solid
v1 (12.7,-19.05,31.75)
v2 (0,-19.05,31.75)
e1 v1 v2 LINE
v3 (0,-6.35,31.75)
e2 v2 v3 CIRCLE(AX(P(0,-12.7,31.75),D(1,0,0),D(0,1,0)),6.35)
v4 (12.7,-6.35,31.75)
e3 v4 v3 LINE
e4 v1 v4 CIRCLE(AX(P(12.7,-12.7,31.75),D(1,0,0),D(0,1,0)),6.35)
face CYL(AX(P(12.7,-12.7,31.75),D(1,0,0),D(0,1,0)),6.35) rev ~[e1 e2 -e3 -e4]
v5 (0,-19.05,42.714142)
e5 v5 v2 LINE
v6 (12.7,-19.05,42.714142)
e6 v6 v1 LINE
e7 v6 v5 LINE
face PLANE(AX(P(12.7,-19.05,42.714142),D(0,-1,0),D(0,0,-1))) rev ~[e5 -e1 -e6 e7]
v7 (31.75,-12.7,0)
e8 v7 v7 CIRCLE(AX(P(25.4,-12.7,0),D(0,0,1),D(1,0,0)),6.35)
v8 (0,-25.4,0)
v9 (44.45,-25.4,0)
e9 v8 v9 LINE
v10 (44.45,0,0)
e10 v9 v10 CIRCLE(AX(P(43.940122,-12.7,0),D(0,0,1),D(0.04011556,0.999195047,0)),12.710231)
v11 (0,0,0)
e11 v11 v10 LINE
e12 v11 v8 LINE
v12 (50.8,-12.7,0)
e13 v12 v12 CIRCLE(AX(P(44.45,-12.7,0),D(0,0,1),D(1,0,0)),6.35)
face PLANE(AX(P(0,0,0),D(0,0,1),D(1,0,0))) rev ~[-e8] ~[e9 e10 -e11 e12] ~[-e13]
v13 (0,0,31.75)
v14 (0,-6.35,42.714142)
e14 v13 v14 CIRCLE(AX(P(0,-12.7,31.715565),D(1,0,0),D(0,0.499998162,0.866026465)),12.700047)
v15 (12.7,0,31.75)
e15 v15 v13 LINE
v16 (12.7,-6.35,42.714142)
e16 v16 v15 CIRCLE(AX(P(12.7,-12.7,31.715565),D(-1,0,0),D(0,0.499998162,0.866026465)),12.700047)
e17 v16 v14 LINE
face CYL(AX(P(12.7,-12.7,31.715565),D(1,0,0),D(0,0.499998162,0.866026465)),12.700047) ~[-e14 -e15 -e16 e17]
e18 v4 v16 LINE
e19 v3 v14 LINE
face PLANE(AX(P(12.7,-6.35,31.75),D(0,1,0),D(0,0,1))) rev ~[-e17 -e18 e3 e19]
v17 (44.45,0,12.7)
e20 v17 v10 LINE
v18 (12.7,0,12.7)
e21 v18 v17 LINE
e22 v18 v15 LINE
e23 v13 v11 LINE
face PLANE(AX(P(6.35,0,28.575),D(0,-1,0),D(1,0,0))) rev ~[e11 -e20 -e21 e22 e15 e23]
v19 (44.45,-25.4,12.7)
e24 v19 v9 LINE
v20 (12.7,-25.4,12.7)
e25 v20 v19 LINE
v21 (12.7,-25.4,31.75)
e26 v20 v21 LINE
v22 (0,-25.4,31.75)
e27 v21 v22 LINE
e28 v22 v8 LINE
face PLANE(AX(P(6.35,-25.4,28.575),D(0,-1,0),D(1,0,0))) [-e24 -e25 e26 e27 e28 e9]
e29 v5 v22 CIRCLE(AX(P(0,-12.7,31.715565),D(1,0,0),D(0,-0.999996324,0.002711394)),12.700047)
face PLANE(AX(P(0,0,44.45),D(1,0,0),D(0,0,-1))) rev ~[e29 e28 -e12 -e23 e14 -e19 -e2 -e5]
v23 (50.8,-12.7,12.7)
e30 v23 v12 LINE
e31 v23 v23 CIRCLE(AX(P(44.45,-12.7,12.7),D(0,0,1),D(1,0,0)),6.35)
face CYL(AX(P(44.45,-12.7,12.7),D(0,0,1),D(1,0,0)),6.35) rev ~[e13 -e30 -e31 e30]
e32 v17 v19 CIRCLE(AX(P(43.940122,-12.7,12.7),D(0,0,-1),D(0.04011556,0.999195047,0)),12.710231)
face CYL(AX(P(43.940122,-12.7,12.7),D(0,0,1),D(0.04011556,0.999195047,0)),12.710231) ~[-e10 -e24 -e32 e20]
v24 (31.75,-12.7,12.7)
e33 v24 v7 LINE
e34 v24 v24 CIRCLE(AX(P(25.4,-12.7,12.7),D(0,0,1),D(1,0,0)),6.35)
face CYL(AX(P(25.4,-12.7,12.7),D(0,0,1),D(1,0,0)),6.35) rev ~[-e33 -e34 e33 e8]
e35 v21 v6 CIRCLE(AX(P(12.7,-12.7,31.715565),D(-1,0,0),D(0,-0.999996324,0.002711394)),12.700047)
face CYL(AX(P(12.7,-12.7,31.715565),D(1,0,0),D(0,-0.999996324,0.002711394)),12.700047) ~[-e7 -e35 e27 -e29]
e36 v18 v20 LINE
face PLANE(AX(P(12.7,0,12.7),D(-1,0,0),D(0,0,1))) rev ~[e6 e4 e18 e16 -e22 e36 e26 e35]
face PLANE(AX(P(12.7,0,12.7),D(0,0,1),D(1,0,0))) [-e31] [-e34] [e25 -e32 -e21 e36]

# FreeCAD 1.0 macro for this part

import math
import FreeCAD as App
import Part
import Sketcher

V = App.Vector
Q = App.Units.Quantity

doc = App.newDocument("Part")
params = doc.addObject("Spreadsheet::Sheet", "Params")
for row, (alias, value) in enumerate([
    ("sketch1_width", "0.5 in"),
    ("sketch1_width2", "2.25 in"),
    ("pad1_length", "1 in"),
    ("sketch2_diameter", "0.5 in"),
    ("sketch2_height", "1 in"),
    ("sketch2_width", "0.5 in"),
    ("pocket1_length", "1 in"),
    ("sketch3_width", "1 in"),
    ("sketch3_radius", "0.25 in"),
    ("sketch3_height", "0.5 in"),
    ("pocket2_length", "1 in"),
], start=1):
    params.set(f"A{row}", alias)
    params.set(f"B{row}", "=" + value)
    params.setAlias(f"B{row}", alias)

body = doc.addObject("PartDesign::Body", "Body")

# Sketch on XZ plane
sketch1 = body.newObject("Sketcher::SketchObject", "Sketch")
sketch1.AttachmentSupport = (doc.getObject("XZ_Plane"), [""])
sketch1.MapMode = "FlatFace"
sketch1.addGeometry(Part.LineSegment(V(0, 44, 0), V(0, 0, 0)), False)
sketch1.addGeometry(Part.LineSegment(V(0, 0, 0), V(57, 0, 0)), False)
sketch1.addGeometry(Part.LineSegment(V(57, 0, 0), V(57, 13, 0)), False)
sketch1.addGeometry(Part.LineSegment(V(57, 13, 0), V(13, 13, 0)), False)
sketch1.addGeometry(Part.LineSegment(V(13, 13, 0), V(13, 44, 0)), False)
sketch1.addGeometry(Part.LineSegment(V(13, 44, 0), V(0, 44, 0)), False)
sketch1.addConstraint(Sketcher.Constraint("Coincident", 0, 2, 1, 1))
sketch1.addConstraint(Sketcher.Constraint("Coincident", 1, 2, 2, 1))
sketch1.addConstraint(Sketcher.Constraint("Coincident", 2, 2, 3, 1))
sketch1.addConstraint(Sketcher.Constraint("Coincident", 3, 2, 4, 1))
sketch1.addConstraint(Sketcher.Constraint("Coincident", 4, 2, 5, 1))
sketch1.addConstraint(Sketcher.Constraint("Coincident", 5, 2, 0, 1))
sketch1.addConstraint(Sketcher.Constraint("Vertical", 0))
sketch1.addConstraint(Sketcher.Constraint("Horizontal", 1))
sketch1.addConstraint(Sketcher.Constraint("Vertical", 2))
sketch1.addConstraint(Sketcher.Constraint("Horizontal", 3))
sketch1.addConstraint(Sketcher.Constraint("Vertical", 4))
sketch1.addConstraint(Sketcher.Constraint("Horizontal", 5))
sketch1.addConstraint(Sketcher.Constraint("Coincident", 0, 2, -1, 1))
sketch1.addConstraint(Sketcher.Constraint("Equal", 3, 0))
sketch1.addConstraint(Sketcher.Constraint("Equal", 5, 2))
sketch1.addConstraint(Sketcher.Constraint("DistanceX", 5, 2, 5, 1, Q("0.5 in")))
sketch1.addConstraint(Sketcher.Constraint("DistanceX", 1, 1, 1, 2, Q("2.25 in")))
sketch1.setExpression("Constraints[15]", "Params.sketch1_width")
sketch1.setExpression("Constraints[16]", "Params.sketch1_width2")
pad1 = body.newObject("PartDesign::Pad", "Pad")
pad1.Profile = sketch1
pad1.setExpression("Length", "Params.pad1_length")

# Sketch on XY plane
sketch2 = body.newObject("Sketcher::SketchObject", "Sketch001")
sketch2.AttachmentSupport = (doc.getObject("XY_Plane"), [""])
sketch2.MapMode = "FlatFace"
sketch2.AttachmentOffset = App.Placement(V(0, 0, 0.5 * 25.4), App.Rotation())
sketch2.addGeometry(Part.Circle(V(25, -13, 0), V(0, 0, 1), 6), False)
sketch2.addGeometry(Part.Circle(V(44, -13, 0), V(0, 0, 1), 6), False)
sketch2.addGeometry(Part.ArcOfCircle(Part.Circle(V(44, -13, 0), V(0, 0, 1), 13), math.radians(-88), math.radians(88)), False)
sketch2.addGeometry(Part.LineSegment(V(44, -25, 0), V(57, -25, 0)), False)
sketch2.addGeometry(Part.LineSegment(V(57, -25, 0), V(57, 0, 0)), False)
sketch2.addGeometry(Part.LineSegment(V(57, 0, 0), V(44, 0, 0)), False)
sketch2.addConstraint(Sketcher.Constraint("Coincident", 2, 1, 3, 1))
sketch2.addConstraint(Sketcher.Constraint("Coincident", 3, 2, 4, 1))
sketch2.addConstraint(Sketcher.Constraint("Coincident", 4, 2, 5, 1))
sketch2.addConstraint(Sketcher.Constraint("Coincident", 5, 2, 2, 2))
sketch2.addConstraint(Sketcher.Constraint("Horizontal", 3))
sketch2.addConstraint(Sketcher.Constraint("Vertical", 4))
sketch2.addConstraint(Sketcher.Constraint("Horizontal", 5))
sketch2.addConstraint(Sketcher.Constraint("Equal", 0, 1))
sketch2.addConstraint(Sketcher.Constraint("PointOnObject", 4, 2, -1))
sketch2.addConstraint(Sketcher.Constraint("Horizontal", 0, 3, 1, 3))
sketch2.addConstraint(Sketcher.Constraint("Horizontal", 1, 3, 2, 3))
sketch2.addConstraint(Sketcher.Constraint("Vertical", 1, 3, 2, 1))
sketch2.addConstraint(Sketcher.Constraint("Vertical", 2, 1, 5, 2))
sketch2.addConstraint(Sketcher.Constraint("Diameter", 0, Q("0.5 in")))
sketch2.addConstraint(Sketcher.Constraint("DistanceY", 4, 1, 4, 2, Q("1 in")))
sketch2.addConstraint(Sketcher.Constraint("DistanceX", 3, 1, 3, 2, Q("0.5 in")))
sketch2.addConstraint(Sketcher.Constraint("DistanceX", -1, 1, 0, 3, Q("1 in")))
sketch2.addConstraint(Sketcher.Constraint("DistanceX", -1, 1, 1, 3, Q("1.75 in")))
sketch2.addConstraint(Sketcher.Constraint("Radius", 2, Q("12.710231 mm")))
sketch2.setExpression("Constraints[13]", "Params.sketch2_diameter")
sketch2.setExpression("Constraints[14]", "Params.sketch2_height")
sketch2.setExpression("Constraints[15]", "Params.sketch2_width")
pocket1 = body.newObject("PartDesign::Pocket", "Pocket")
pocket1.Profile = sketch2
pocket1.setExpression("Length", "Params.pocket1_length")

# Sketch on YZ plane
sketch3 = body.newObject("Sketcher::SketchObject", "Sketch002")
sketch3.AttachmentSupport = (doc.getObject("YZ_Plane"), [""])
sketch3.MapMode = "FlatFace"
sketch3.AttachmentOffset = App.Placement(V(0, 0, 0.5 * 25.4), App.Rotation())
sketch3.addGeometry(Part.ArcOfCircle(Part.Circle(V(-13, 32, 0), V(0, 0, 1), 6), math.radians(180), math.radians(360)), False)
sketch3.addGeometry(Part.LineSegment(V(-6, 32, 0), V(-6, 43, 0)), False)
sketch3.addGeometry(Part.ArcOfCircle(Part.Circle(V(-13, 32, 0), V(0, 0, 1), 13), math.radians(0), math.radians(60)), False)
sketch3.addGeometry(Part.LineSegment(V(0, 32, 0), V(0, 44, 0)), False)
sketch3.addGeometry(Part.LineSegment(V(0, 44, 0), V(-25, 44, 0)), False)
sketch3.addGeometry(Part.LineSegment(V(-25, 44, 0), V(-25, 32, 0)), False)
sketch3.addGeometry(Part.ArcOfCircle(Part.Circle(V(-13, 32, 0), V(0, 0, 1), 13), math.radians(120), math.radians(180)), False)
sketch3.addGeometry(Part.LineSegment(V(-19, 43, 0), V(-19, 32, 0)), False)
sketch3.addConstraint(Sketcher.Constraint("Tangent", 0, 2, 1, 1))
sketch3.addConstraint(Sketcher.Constraint("Coincident", 1, 2, 2, 2))
sketch3.addConstraint(Sketcher.Constraint("Coincident", 2, 1, 3, 1))
sketch3.addConstraint(Sketcher.Constraint("Coincident", 3, 2, 4, 1))
sketch3.addConstraint(Sketcher.Constraint("Coincident", 4, 2, 5, 1))
sketch3.addConstraint(Sketcher.Constraint("Coincident", 5, 2, 6, 2))
sketch3.addConstraint(Sketcher.Constraint("Coincident", 6, 1, 7, 1))
sketch3.addConstraint(Sketcher.Constraint("Tangent", 7, 2, 0, 1))
sketch3.addConstraint(Sketcher.Constraint("Vertical", 1))
sketch3.addConstraint(Sketcher.Constraint("Vertical", 3))
sketch3.addConstraint(Sketcher.Constraint("Horizontal", 4))
sketch3.addConstraint(Sketcher.Constraint("Vertical", 5))
sketch3.addConstraint(Sketcher.Constraint("Vertical", 7))
sketch3.addConstraint(Sketcher.Constraint("Coincident", 6, 3, 2, 3))
sketch3.addConstraint(Sketcher.Constraint("Equal", 2, 6))
sketch3.addConstraint(Sketcher.Constraint("PointOnObject", 2, 1, -2))
sketch3.addConstraint(Sketcher.Constraint("Horizontal", 0, 2, 2, 1))
sketch3.addConstraint(Sketcher.Constraint("Horizontal", 2, 1, 5, 2))
sketch3.addConstraint(Sketcher.Constraint("Horizontal", 1, 2, 6, 1))
sketch3.addConstraint(Sketcher.Constraint("DistanceX", 4, 2, 4, 1, Q("1 in")))
sketch3.addConstraint(Sketcher.Constraint("Radius", 0, Q("0.25 in")))
sketch3.addConstraint(Sketcher.Constraint("DistanceY", 3, 1, 3, 2, Q("0.5 in")))
sketch3.addConstraint(Sketcher.Constraint("DistanceY", -1, 1, 0, 3, Q("1.25 in")))
sketch3.addConstraint(Sketcher.Constraint("DistanceY", 1, 1, 1, 2, Q("10.964142 mm")))
sketch3.setExpression("Constraints[19]", "Params.sketch3_width")
sketch3.setExpression("Constraints[20]", "Params.sketch3_radius")
sketch3.setExpression("Constraints[21]", "Params.sketch3_height")
pocket2 = body.newObject("PartDesign::Pocket", "Pocket001")
pocket2.Profile = sketch3
pocket2.setExpression("Length", "Params.pocket2_length")

doc.recompute()
